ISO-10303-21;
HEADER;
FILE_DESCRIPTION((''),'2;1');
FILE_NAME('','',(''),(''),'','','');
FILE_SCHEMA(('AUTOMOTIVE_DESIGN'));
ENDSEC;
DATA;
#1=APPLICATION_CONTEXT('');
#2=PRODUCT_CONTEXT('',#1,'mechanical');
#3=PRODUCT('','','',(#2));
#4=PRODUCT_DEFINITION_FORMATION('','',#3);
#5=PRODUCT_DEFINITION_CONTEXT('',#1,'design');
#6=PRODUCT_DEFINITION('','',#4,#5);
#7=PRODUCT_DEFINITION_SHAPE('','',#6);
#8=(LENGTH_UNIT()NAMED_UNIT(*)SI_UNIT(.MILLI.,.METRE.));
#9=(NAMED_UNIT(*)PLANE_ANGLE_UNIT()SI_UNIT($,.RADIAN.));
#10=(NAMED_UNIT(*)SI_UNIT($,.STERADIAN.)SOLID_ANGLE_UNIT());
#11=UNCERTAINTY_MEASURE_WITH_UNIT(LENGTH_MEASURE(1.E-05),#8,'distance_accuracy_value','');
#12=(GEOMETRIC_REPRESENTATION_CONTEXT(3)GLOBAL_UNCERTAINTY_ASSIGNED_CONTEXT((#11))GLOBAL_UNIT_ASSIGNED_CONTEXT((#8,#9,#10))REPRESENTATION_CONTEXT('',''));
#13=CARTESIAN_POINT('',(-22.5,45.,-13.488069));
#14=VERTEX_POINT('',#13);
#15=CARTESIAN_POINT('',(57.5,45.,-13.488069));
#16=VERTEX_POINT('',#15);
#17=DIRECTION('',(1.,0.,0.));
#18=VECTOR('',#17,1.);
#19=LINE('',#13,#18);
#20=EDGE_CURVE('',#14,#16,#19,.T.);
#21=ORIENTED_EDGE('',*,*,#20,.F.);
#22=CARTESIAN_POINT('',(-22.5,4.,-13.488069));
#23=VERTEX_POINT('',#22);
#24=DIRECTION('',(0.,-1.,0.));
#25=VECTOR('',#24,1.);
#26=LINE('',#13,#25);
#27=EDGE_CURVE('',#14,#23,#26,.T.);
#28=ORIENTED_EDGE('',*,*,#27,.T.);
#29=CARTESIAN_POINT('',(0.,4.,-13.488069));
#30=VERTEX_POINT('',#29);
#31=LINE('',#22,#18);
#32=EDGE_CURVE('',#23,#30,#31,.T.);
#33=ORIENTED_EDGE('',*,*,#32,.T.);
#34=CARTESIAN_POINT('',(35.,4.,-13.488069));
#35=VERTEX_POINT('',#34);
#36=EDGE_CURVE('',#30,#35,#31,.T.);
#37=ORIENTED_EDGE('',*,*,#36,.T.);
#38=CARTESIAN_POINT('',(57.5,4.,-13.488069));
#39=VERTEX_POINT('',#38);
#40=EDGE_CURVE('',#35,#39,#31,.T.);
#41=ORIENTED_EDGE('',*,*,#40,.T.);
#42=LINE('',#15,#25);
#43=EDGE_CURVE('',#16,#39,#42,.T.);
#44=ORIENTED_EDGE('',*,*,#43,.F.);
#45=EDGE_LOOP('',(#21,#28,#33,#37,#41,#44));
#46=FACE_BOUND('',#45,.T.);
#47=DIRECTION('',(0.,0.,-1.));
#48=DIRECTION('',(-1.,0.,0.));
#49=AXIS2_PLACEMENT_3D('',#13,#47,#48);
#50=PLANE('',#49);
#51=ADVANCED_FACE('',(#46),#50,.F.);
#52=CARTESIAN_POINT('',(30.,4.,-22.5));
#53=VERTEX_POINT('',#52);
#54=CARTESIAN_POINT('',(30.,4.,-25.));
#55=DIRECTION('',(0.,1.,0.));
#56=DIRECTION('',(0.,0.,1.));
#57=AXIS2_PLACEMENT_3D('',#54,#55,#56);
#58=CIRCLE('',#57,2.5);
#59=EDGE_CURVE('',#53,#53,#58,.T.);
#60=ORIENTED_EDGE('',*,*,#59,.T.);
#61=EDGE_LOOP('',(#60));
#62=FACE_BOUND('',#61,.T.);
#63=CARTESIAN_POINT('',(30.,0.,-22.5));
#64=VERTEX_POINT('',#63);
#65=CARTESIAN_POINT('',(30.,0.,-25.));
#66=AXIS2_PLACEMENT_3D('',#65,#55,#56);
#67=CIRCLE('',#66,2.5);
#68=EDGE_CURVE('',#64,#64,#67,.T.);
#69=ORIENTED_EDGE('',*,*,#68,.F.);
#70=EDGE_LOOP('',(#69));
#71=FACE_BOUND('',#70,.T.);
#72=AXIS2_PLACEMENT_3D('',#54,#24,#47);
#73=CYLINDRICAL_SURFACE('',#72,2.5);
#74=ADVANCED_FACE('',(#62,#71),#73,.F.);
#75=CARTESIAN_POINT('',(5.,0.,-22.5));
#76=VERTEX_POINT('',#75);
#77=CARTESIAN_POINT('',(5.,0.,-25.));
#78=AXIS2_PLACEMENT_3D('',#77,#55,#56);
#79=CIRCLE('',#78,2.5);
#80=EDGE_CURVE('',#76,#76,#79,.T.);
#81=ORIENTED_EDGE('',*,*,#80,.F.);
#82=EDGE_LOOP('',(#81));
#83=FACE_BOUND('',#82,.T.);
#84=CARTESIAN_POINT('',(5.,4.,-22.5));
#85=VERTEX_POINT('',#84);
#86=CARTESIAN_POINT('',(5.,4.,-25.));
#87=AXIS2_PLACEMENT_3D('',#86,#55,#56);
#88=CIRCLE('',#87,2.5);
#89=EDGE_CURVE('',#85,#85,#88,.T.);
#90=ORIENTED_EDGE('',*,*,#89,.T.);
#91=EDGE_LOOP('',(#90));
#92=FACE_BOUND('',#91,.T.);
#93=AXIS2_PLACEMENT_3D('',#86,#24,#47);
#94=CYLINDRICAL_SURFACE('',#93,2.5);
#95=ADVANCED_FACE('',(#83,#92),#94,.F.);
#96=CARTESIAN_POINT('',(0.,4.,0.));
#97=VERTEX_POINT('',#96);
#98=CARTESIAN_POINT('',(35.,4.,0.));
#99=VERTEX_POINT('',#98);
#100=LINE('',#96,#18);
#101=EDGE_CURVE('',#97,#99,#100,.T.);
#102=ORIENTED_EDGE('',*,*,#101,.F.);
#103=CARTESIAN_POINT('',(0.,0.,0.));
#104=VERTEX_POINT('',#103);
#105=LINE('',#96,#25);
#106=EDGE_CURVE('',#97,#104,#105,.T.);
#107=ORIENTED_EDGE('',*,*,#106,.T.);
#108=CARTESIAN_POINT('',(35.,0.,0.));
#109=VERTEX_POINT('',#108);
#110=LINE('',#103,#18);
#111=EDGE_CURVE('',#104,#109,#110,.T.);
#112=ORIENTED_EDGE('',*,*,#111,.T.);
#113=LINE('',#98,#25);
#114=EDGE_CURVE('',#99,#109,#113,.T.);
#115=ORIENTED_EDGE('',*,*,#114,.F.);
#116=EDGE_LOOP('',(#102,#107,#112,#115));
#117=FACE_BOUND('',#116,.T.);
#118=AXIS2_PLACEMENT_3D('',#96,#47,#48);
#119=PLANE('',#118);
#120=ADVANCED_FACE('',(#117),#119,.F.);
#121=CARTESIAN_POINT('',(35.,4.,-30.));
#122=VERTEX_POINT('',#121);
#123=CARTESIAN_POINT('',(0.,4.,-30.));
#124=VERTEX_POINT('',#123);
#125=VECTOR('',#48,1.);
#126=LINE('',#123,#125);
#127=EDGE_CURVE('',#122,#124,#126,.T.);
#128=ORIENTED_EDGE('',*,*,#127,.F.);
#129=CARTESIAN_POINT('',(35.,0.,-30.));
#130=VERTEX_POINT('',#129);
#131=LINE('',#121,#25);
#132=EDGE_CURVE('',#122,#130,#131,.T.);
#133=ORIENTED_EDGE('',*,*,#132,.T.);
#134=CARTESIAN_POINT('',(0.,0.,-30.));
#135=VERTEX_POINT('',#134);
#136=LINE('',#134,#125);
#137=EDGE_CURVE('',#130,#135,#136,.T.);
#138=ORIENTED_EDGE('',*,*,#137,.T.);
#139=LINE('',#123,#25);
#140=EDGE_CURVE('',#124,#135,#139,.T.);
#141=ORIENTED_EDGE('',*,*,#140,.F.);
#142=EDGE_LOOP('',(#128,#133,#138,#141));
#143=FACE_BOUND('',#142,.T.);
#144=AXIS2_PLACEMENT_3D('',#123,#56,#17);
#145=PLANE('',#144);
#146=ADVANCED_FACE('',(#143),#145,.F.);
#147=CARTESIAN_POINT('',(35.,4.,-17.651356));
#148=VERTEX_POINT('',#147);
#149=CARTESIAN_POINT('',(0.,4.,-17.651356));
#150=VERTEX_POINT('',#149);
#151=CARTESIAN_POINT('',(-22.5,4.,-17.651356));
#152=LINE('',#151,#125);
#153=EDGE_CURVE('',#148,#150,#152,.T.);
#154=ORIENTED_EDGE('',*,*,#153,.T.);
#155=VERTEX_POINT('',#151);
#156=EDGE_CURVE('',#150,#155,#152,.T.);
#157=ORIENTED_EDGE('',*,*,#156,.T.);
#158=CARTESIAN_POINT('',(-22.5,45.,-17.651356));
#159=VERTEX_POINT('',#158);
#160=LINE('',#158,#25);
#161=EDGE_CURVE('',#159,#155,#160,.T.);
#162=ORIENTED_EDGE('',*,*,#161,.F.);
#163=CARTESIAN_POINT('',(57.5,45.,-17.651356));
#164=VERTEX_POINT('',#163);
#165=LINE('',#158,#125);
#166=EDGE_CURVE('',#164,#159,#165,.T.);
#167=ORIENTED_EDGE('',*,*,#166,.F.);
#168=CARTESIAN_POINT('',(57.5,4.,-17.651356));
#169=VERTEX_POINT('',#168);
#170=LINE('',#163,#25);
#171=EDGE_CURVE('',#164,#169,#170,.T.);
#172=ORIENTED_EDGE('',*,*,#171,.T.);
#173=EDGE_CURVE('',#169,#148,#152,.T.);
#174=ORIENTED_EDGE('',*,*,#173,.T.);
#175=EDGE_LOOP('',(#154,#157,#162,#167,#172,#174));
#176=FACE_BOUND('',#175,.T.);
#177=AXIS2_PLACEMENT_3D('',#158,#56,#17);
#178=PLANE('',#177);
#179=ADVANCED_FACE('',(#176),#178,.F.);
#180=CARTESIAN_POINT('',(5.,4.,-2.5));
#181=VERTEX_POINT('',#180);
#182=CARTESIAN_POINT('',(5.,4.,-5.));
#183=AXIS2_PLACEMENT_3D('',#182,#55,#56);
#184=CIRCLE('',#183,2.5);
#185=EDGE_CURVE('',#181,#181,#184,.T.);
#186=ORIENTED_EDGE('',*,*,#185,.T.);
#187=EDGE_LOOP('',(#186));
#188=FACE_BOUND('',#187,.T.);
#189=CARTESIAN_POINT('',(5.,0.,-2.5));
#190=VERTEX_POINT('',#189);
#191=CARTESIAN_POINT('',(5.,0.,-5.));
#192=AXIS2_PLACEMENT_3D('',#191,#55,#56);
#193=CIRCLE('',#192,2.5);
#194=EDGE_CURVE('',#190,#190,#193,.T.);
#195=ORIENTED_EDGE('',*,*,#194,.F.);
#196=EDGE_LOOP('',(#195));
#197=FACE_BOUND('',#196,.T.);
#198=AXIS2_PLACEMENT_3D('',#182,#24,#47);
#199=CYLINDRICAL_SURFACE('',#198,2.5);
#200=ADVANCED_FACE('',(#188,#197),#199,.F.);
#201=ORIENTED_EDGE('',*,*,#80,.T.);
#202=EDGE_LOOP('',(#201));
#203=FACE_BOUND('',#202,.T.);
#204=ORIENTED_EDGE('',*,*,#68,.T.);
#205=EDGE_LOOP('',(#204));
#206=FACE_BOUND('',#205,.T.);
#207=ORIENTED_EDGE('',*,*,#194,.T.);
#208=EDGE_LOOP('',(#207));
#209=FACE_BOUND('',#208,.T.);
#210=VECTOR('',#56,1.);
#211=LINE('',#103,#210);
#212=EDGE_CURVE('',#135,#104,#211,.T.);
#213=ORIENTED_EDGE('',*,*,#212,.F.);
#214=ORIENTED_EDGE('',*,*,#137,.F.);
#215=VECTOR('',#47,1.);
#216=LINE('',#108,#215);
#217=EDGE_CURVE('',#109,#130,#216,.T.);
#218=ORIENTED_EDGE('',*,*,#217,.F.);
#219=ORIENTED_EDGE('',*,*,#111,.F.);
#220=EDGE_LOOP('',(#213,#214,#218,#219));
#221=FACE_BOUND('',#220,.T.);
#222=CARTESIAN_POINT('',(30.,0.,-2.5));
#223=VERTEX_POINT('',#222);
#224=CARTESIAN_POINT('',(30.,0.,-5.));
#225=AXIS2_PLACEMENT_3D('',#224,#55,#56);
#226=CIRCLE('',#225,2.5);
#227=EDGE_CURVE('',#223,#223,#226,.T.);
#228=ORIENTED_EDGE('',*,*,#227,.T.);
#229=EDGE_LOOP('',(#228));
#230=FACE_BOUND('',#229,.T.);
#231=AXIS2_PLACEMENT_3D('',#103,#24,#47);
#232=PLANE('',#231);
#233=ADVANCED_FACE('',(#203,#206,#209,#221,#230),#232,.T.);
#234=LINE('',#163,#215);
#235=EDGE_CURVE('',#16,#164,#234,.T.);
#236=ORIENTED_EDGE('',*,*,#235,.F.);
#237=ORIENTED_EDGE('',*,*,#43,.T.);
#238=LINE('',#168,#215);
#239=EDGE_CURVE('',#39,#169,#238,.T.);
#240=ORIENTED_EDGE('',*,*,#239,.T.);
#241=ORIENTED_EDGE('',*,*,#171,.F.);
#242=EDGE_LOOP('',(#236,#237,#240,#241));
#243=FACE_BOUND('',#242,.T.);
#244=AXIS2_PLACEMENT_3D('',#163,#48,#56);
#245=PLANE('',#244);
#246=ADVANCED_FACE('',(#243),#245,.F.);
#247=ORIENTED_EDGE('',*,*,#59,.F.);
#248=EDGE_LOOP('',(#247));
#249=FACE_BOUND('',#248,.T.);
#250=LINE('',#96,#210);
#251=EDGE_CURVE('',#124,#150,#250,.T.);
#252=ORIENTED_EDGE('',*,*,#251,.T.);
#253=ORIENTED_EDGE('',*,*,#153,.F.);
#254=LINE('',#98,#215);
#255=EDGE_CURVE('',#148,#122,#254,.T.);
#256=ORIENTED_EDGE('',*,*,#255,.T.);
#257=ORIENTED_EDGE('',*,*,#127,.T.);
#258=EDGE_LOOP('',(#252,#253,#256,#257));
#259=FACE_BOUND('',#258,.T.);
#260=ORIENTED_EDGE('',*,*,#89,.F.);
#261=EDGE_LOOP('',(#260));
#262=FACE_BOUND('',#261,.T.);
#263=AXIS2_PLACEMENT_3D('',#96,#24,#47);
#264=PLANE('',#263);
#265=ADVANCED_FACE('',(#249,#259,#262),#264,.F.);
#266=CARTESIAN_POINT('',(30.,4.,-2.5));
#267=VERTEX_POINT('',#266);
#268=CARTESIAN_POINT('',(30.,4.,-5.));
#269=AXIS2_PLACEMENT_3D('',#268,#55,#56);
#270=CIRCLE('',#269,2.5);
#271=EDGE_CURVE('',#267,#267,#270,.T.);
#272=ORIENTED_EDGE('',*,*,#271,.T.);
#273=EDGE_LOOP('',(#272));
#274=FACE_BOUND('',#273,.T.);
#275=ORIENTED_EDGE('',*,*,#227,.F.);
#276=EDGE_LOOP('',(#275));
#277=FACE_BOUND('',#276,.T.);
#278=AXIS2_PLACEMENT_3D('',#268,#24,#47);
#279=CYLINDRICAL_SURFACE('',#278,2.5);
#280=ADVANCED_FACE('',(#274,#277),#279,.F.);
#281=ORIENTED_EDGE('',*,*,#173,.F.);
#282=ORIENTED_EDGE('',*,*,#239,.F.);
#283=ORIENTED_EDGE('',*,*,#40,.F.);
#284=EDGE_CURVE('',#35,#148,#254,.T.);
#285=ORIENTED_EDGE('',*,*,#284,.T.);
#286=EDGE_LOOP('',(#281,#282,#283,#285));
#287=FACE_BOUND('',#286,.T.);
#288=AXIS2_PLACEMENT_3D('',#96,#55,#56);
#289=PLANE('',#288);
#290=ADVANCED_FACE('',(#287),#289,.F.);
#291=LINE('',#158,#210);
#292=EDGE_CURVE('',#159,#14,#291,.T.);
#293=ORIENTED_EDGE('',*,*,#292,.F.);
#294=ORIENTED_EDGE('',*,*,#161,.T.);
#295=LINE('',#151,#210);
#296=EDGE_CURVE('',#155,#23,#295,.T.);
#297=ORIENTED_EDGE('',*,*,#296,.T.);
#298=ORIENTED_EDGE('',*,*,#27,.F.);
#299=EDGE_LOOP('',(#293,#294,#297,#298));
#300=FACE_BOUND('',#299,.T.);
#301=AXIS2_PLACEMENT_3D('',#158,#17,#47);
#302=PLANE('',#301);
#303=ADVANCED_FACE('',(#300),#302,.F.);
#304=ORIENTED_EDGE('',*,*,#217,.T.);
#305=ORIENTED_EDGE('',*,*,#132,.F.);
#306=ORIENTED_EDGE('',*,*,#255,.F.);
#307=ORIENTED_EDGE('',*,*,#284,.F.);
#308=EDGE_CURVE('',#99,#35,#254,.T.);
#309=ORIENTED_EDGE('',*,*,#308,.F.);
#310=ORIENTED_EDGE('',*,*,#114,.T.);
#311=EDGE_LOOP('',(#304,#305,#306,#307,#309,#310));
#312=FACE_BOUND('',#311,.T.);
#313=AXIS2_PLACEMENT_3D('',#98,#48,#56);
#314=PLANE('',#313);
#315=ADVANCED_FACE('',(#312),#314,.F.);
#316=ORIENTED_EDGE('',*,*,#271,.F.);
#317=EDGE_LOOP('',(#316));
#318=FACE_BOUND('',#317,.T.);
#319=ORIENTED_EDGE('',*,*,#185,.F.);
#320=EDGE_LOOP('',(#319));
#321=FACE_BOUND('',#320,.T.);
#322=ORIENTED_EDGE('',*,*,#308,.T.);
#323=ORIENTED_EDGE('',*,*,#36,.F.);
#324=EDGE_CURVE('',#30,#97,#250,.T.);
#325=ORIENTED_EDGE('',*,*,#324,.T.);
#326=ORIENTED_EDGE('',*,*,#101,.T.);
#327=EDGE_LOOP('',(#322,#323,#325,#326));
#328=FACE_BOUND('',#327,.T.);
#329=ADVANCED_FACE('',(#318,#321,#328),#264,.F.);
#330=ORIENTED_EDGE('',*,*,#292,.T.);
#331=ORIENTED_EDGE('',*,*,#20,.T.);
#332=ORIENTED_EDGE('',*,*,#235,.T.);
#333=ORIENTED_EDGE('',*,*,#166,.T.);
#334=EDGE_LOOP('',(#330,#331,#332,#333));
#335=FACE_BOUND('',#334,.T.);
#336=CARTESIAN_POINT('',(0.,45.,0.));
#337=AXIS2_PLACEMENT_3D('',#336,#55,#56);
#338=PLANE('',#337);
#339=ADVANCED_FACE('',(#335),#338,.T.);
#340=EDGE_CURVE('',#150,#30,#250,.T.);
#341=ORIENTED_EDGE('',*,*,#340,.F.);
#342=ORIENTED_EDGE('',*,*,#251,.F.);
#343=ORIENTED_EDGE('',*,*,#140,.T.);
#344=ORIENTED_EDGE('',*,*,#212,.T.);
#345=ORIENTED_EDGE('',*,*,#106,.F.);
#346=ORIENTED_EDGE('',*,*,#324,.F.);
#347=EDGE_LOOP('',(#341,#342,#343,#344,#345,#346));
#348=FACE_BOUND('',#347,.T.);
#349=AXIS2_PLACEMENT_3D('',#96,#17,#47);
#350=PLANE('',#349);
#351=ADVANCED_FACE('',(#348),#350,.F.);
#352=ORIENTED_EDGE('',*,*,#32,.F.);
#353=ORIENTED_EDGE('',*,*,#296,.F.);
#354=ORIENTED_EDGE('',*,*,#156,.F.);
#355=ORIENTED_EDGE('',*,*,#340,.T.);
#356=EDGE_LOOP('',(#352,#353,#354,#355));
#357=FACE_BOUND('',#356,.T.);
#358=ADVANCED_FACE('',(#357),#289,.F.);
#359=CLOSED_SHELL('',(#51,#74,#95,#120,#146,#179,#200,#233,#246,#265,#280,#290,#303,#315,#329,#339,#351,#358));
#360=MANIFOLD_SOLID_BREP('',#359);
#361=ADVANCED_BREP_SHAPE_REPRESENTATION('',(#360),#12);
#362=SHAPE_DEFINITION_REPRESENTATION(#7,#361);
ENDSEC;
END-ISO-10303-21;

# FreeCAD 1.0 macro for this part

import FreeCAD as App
import Part
import Sketcher

V = App.Vector
Q = App.Units.Quantity

doc = App.newDocument("Part")
params = doc.addObject("Spreadsheet::Sheet", "Params")
for row, (alias, value) in enumerate([
    ("sketch1_diameter", "5 mm"),
    ("sketch1_width", "35 mm"),
    ("sketch1_height", "30 mm"),
    ("pad1_length", "4 mm"),
    ("sketch2_width", "80 mm"),
    ("pad2_length", "41 mm"),
], start=1):
    params.set(f"A{row}", alias)
    params.set(f"B{row}", "=" + value)
    params.setAlias(f"B{row}", alias)

body = doc.addObject("PartDesign::Body", "Body")

# Sketch on XZ plane
sketch1 = doc.addObject("Sketcher::SketchObject", "Sketch")
body.addObject(sketch1)
sketch1.AttachmentSupport = (doc.XZ_Plane, [""])
sketch1.MapMode = "FlatFace"
sketch1.addGeometry([
    Part.LineSegment(V(0, -30, 0), V(0, 0, 0)),  # 0
    Part.LineSegment(V(0, 0, 0), V(35, 0, 0)),  # 1
    Part.LineSegment(V(35, 0, 0), V(35, -30, 0)),  # 2
    Part.LineSegment(V(35, -30, 0), V(0, -30, 0)),  # 3
    Part.Circle(V(5, -5, 0), V(0, 0, 1), 2.5),  # 4
    Part.Circle(V(30, -5, 0), V(0, 0, 1), 2.5),  # 5
    Part.Circle(V(5, -25, 0), V(0, 0, 1), 2.5),  # 6
    Part.Circle(V(30, -25, 0), V(0, 0, 1), 2.5),  # 7
], False)
sketch1.addConstraint([
    Sketcher.Constraint("Coincident", 0, 2, 1, 1),
    Sketcher.Constraint("Coincident", 1, 2, 2, 1),
    Sketcher.Constraint("Coincident", 2, 2, 3, 1),
    Sketcher.Constraint("Coincident", 3, 2, 0, 1),
    Sketcher.Constraint("Vertical", 0),
    Sketcher.Constraint("Horizontal", 1),
    Sketcher.Constraint("Vertical", 2),
    Sketcher.Constraint("Horizontal", 3),
    Sketcher.Constraint("Coincident", 0, 2, -1, 1),
    Sketcher.Constraint("Equal", 4, 5),
    Sketcher.Constraint("Equal", 5, 6),
    Sketcher.Constraint("Equal", 6, 7),
    Sketcher.Constraint("Horizontal", 4, 3, 5, 3),
    Sketcher.Constraint("Horizontal", 6, 3, 7, 3),
    Sketcher.Constraint("Vertical", 4, 3, 6, 3),
    Sketcher.Constraint("Vertical", 5, 3, 7, 3),
    Sketcher.Constraint("Diameter", 4, Q("5 mm")),
    Sketcher.Constraint("DistanceX", 1, 1, 1, 2, Q("35 mm")),
    Sketcher.Constraint("DistanceY", 0, 1, 0, 2, Q("30 mm")),
    Sketcher.Constraint("DistanceX", -1, 1, 4, 3, Q("5 mm")),
    Sketcher.Constraint("DistanceY", 4, 3, -1, 1, Q("5 mm")),
    Sketcher.Constraint("DistanceX", -1, 1, 5, 3, Q("30 mm")),
    Sketcher.Constraint("DistanceY", 6, 3, -1, 1, Q("25 mm")),
])
sketch1.setExpression("Constraints[16]", "Params.sketch1_diameter")
sketch1.setExpression("Constraints[17]", "Params.sketch1_width")
sketch1.setExpression("Constraints[18]", "Params.sketch1_height")
pad1 = doc.addObject("PartDesign::Pad", "Pad")
body.addObject(pad1)
pad1.Profile = sketch1
pad1.setExpression("Length", "Params.pad1_length")
pad1.Reversed = True

# Sketch on XZ plane
sketch2 = doc.addObject("Sketcher::SketchObject", "Sketch001")
body.addObject(sketch2)
sketch2.AttachmentSupport = (doc.XZ_Plane, [""])
sketch2.MapMode = "FlatFace"
sketch2.AttachmentOffset = App.Placement(V(0, 0, -4), App.Rotation())
sketch2.addGeometry([
    Part.LineSegment(V(-22.5, -17.7, 0), V(-22.5, -13.5, 0)),
    Part.LineSegment(V(-22.5, -13.5, 0), V(57.5, -13.5, 0)),
    Part.LineSegment(V(57.5, -13.5, 0), V(57.5, -17.7, 0)),
    Part.LineSegment(V(57.5, -17.7, 0), V(-22.5, -17.7, 0)),
], False)
sketch2.addConstraint([
    Sketcher.Constraint("Coincident", 0, 2, 1, 1),
    Sketcher.Constraint("Coincident", 1, 2, 2, 1),
    Sketcher.Constraint("Coincident", 2, 2, 3, 1),
    Sketcher.Constraint("Coincident", 3, 2, 0, 1),
    Sketcher.Constraint("Vertical", 0),
    Sketcher.Constraint("Horizontal", 1),
    Sketcher.Constraint("Vertical", 2),
    Sketcher.Constraint("Horizontal", 3),
    Sketcher.Constraint("DistanceX", 1, 1, 1, 2, Q("80 mm")),
    Sketcher.Constraint("DistanceX", 0, 2, -1, 1, Q("22.5 mm")),
    Sketcher.Constraint("DistanceY", 0, 1, 0, 2, Q("4.163287 mm")),
    Sketcher.Constraint("DistanceY", 0, 2, -1, 1, Q("13.488069 mm")),
])
sketch2.setExpression("Constraints[8]", "Params.sketch2_width")
pad2 = doc.addObject("PartDesign::Pad", "Pad001")
body.addObject(pad2)
pad2.Profile = sketch2
pad2.setExpression("Length", "Params.pad2_length")
pad2.Reversed = True

doc.recompute()
